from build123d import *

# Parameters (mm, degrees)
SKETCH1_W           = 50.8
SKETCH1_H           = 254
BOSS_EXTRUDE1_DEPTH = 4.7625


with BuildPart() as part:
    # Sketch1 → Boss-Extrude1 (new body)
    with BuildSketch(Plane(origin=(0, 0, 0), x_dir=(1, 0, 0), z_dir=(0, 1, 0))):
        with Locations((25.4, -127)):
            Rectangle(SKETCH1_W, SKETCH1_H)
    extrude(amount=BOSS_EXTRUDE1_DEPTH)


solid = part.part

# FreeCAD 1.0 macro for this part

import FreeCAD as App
import Part
import Sketcher
Q = App.Units.Quantity

doc = App.newDocument("Part")
params = doc.addObject("Spreadsheet::Sheet", "Params")
for row, (alias, value) in enumerate([
    ("sketch1_width", "2 in"),
    ("sketch1_height", "10 in"),
    ("pad1_length", "0.1875 in"),
], start=1):
    params.set(f"A{row}", alias)
    params.set(f"B{row}", "=" + value)
    params.setAlias(f"B{row}", alias)

body = doc.addObject("PartDesign::Body", "Body")

sketch1 = body.newObject("Sketcher::SketchObject", "Sketch")
sketch1.AttachmentSupport = (doc.getObject("XZ_Plane"), [""])
sketch1.MapMode = "FlatFace"
sketch1.addGeometry(Part.LineSegment(App.Vector(0, 0, 0), App.Vector(0, 254, 0)), False)
sketch1.addGeometry(Part.LineSegment(App.Vector(0, 254, 0), App.Vector(51, 254, 0)), False)
sketch1.addGeometry(Part.LineSegment(App.Vector(51, 254, 0), App.Vector(51, 0, 0)), False)
sketch1.addGeometry(Part.LineSegment(App.Vector(51, 0, 0), App.Vector(0, 0, 0)), False)
sketch1.addConstraint(Sketcher.Constraint("Coincident", 0, 2, 1, 1))
sketch1.addConstraint(Sketcher.Constraint("Coincident", 1, 2, 2, 1))
sketch1.addConstraint(Sketcher.Constraint("Coincident", 2, 2, 3, 1))
sketch1.addConstraint(Sketcher.Constraint("Coincident", 3, 2, 0, 1))
sketch1.addConstraint(Sketcher.Constraint("Vertical", 0))
sketch1.addConstraint(Sketcher.Constraint("Horizontal", 1))
sketch1.addConstraint(Sketcher.Constraint("Vertical", 2))
sketch1.addConstraint(Sketcher.Constraint("Horizontal", 3))
sketch1.addConstraint(Sketcher.Constraint("Coincident", 3, 2, -1, 1))
sketch1.addConstraint(Sketcher.Constraint("DistanceX", 1, 1, 1, 2, Q("2 in")))
sketch1.addConstraint(Sketcher.Constraint("DistanceY", 0, 1, 0, 2, Q("10 in")))
sketch1.setExpression("Constraints[9]", "Params.sketch1_width")
sketch1.setExpression("Constraints[10]", "Params.sketch1_height")
pad1 = body.newObject("PartDesign::Pad", "Pad")
pad1.Profile = sketch1
pad1.setExpression("Length", "Params.pad1_length")
pad1.Reversed = True

doc.recompute()
